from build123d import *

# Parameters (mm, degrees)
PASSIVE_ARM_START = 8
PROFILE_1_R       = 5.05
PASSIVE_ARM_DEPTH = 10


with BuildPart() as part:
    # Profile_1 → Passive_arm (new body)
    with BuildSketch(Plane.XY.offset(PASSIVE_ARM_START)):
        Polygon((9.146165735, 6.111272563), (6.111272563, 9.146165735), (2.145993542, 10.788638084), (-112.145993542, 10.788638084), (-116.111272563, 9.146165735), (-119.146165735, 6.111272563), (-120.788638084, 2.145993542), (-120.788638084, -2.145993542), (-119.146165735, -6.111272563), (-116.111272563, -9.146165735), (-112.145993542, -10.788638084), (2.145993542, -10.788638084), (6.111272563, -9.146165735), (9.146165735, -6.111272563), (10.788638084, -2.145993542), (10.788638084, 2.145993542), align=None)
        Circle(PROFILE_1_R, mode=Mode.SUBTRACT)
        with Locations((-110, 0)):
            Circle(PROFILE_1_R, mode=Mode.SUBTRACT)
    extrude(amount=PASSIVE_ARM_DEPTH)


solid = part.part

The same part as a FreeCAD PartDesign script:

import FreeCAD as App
import Part
import Sketcher

V = App.Vector
Q = App.Units.Quantity


def add_polygon(sketch, points):
    """Adds a closed chain of lines whose ends are joined by coincident constraints."""
    first, n = sketch.GeometryCount, len(points)
    for a, b in zip(points, points[1:] + points[:1]):
        sketch.addGeometry(Part.LineSegment(App.Vector(*a, 0), App.Vector(*b, 0)), False)
    for i in range(n):
        sketch.addConstraint(Sketcher.Constraint("Coincident", first + i, 2, first + (i + 1) % n, 1))

doc = App.newDocument("Part")
params = doc.addObject("Spreadsheet::Sheet", "Params")
for row, (alias, value) in enumerate([
    ("sketch1_diameter", "10.1 mm"),
    ("pad1_length", "10 mm"),
], start=1):
    params.set(f"A{row}", alias)
    params.set(f"B{row}", "=" + value)
    params.setAlias(f"B{row}", alias)

body = doc.addObject("PartDesign::Body", "Body")

sketch1 = body.newObject("Sketcher::SketchObject", "Sketch")
sketch1.AttachmentSupport = (doc.getObject("XY_Plane"), [""])
sketch1.MapMode = "FlatFace"
sketch1.AttachmentOffset = App.Placement(V(0, 0, 8), App.Rotation())
add_polygon(sketch1, [(9.1, 6.1), (6.1, 9.1), (2.1, 10.8), (-112.1, 10.8), (-116.1, 9.1), (-119.1, 6.1), (-120.8, 2.1), (-120.8, -2.1), (-119.1, -6.1), (-116.1, -9.1), (-112.1, -10.8), (2.1, -10.8), (6.1, -9.1), (9.1, -6.1), (10.8, -2.1), (10.8, 2.1)])
sketch1.addGeometry(Part.Circle(V(-110, 0, 0), V(0, 0, 1), 5), False)
sketch1.addGeometry(Part.Circle(V(0, 0, 0), V(0, 0, 1), 5), False)
sketch1.addConstraint(Sketcher.Constraint("Horizontal", 2))
sketch1.addConstraint(Sketcher.Constraint("Vertical", 6))
sketch1.addConstraint(Sketcher.Constraint("Horizontal", 10))
sketch1.addConstraint(Sketcher.Constraint("Vertical", 14))
sketch1.addConstraint(Sketcher.Constraint("Coincident", 17, 3, -1, 1))
sketch1.addConstraint(Sketcher.Constraint("Equal", 16, 17))
sketch1.addConstraint(Sketcher.Constraint("Symmetric", 4, 2, 7, 2, -1))
sketch1.addConstraint(Sketcher.Constraint("Symmetric", 3, 2, 8, 2, -1))
sketch1.addConstraint(Sketcher.Constraint("Symmetric", 2, 2, 9, 2, -1))
sketch1.addConstraint(Sketcher.Constraint("Symmetric", 0, 2, 11, 2, -1))
sketch1.addConstraint(Sketcher.Constraint("Symmetric", 12, 2, 15, 2, -1))
sketch1.addConstraint(Sketcher.Constraint("PointOnObject", 16, 3, -1))
sketch1.addConstraint(Sketcher.Constraint("Perpendicular", 0, 4))
sketch1.addConstraint(Sketcher.Constraint("Perpendicular", 1, 5))
sketch1.addConstraint(Sketcher.Constraint("Perpendicular", 3, 7))
sketch1.addConstraint(Sketcher.Constraint("Perpendicular", 4, 8))
sketch1.addConstraint(Sketcher.Constraint("Perpendicular", 5, 9))
sketch1.addConstraint(Sketcher.Constraint("Perpendicular", 7, 11))
sketch1.addConstraint(Sketcher.Constraint("Perpendicular", 9, 13))
sketch1.addConstraint(Sketcher.Constraint("Perpendicular", 11, 15))
sketch1.addConstraint(Sketcher.Constraint("Horizontal", 0, 2, 3, 2))
sketch1.addConstraint(Sketcher.Constraint("Horizontal", 7, 2, 12, 2))
sketch1.addConstraint(Sketcher.Constraint("Horizontal", 6, 2, 13, 2))
sketch1.addConstraint(Sketcher.Constraint("Equal", 0, 1))
sketch1.addConstraint(Sketcher.Constraint("Equal", 4, 5))
sketch1.addConstraint(Sketcher.Constraint("Diameter", 16, 10.1))
sketch1.addConstraint(Sketcher.Constraint("DistanceX", 16, 3, -1, 1, 110.0))
sketch1.addConstraint(Sketcher.Constraint("Angle", 1, Q("157.5 deg")))
sketch1.addConstraint(Sketcher.Constraint("DistanceX", 2, 2, 2, 1, 114.291987))
sketch1.addConstraint(Sketcher.Constraint("DistanceY", 6, 2, 6, 1, 4.291987))
sketch1.addConstraint(Sketcher.Constraint("DistanceY", -1, 1, 1, 2, 10.788638))
sketch1.addConstraint(Sketcher.Constraint("DistanceX", 5, 2, -1, 1, 120.788638))
sketch1.setExpression("Constraints[41]", "Params.sketch1_diameter")
pad1 = body.newObject("PartDesign::Pad", "Pad")
pad1.Profile = sketch1
pad1.setExpression("Length", "Params.pad1_length")

doc.recompute()
